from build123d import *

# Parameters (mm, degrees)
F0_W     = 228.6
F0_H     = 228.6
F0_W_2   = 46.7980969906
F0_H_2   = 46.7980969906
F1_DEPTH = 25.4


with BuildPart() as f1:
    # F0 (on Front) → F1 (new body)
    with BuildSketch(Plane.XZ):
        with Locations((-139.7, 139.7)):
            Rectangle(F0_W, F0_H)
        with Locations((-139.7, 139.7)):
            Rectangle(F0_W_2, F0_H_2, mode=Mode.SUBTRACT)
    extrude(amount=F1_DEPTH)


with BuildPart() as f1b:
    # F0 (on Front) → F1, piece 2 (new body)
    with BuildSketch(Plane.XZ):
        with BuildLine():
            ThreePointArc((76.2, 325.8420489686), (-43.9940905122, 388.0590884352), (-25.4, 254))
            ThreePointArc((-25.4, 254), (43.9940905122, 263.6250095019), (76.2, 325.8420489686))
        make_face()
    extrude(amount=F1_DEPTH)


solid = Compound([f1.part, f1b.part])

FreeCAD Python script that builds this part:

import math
import FreeCAD as App
import Part
import Sketcher

V = App.Vector
Q = App.Units.Quantity

doc = App.newDocument("Part")
body = doc.addObject("PartDesign::Body", "Body")

# Sketch on XZ plane
sketch1 = body.newObject("Sketcher::SketchObject", "Sketch")
sketch1.AttachmentSupport = (doc.getObject("XZ_Plane"), [""])
sketch1.MapMode = "FlatFace"
sketch1.addGeometry([
    Part.LineSegment(V(-254, 254, 0), V(-254, 25.4, 0)),  # 0
    Part.LineSegment(V(-254, 25.4, 0), V(-25.4, 25.4, 0)),  # 1
    Part.LineSegment(V(-25.4, 25.4, 0), V(-25.4, 254, 0)),  # 2
    Part.LineSegment(V(-25.4, 254, 0), V(-254, 254, 0)),  # 3
    Part.LineSegment(V(-116.300952, 116.300952, 0), V(-163.099048, 116.300952, 0)),  # 4
    Part.LineSegment(V(-163.099048, 116.300952, 0), V(-163.099048, 163.099048, 0)),  # 5
    Part.LineSegment(V(-163.099048, 163.099048, 0), V(-116.300952, 163.099048, 0)),  # 6
    Part.LineSegment(V(-116.300952, 163.099048, 0), V(-116.300952, 116.300952, 0)),  # 7
], False)
sketch1.addConstraint([
    Sketcher.Constraint("Coincident", 0, 2, 1, 1),
    Sketcher.Constraint("Coincident", 1, 2, 2, 1),
    Sketcher.Constraint("Coincident", 2, 2, 3, 1),
    Sketcher.Constraint("Coincident", 3, 2, 0, 1),
    Sketcher.Constraint("Coincident", 4, 2, 5, 1),
    Sketcher.Constraint("Coincident", 5, 2, 6, 1),
    Sketcher.Constraint("Coincident", 6, 2, 7, 1),
    Sketcher.Constraint("Coincident", 7, 2, 4, 1),
    Sketcher.Constraint("Vertical", 0),
    Sketcher.Constraint("Horizontal", 1),
    Sketcher.Constraint("Vertical", 2),
    Sketcher.Constraint("Horizontal", 3),
    Sketcher.Constraint("Horizontal", 4),
    Sketcher.Constraint("Vertical", 5),
    Sketcher.Constraint("Horizontal", 6),
    Sketcher.Constraint("Vertical", 7),
    Sketcher.Constraint("Equal", 3, 0),
    Sketcher.Constraint("Equal", 6, 5),
    Sketcher.Constraint("DistanceX", 1, 1, 1, 2, Q("9 in")),
    Sketcher.Constraint("DistanceX", 0, 2, -1, 1, Q("10 in")),
    Sketcher.Constraint("DistanceY", -1, 1, 0, 2, Q("1 in")),
    Sketcher.Constraint("DistanceX", 4, 2, 4, 1, Q("46.798097 mm")),
    Sketcher.Constraint("DistanceX", 4, 2, -1, 1, Q("163.099048 mm")),
    Sketcher.Constraint("DistanceY", -1, 1, 4, 2, Q("116.300952 mm")),
])
pad1 = body.newObject("PartDesign::Pad", "Pad")
pad1.Profile = sketch1
pad1.Length = Q("1 in")
body2 = doc.addObject("PartDesign::Body", "Body001")

# Sketch on XZ plane
sketch2 = body2.newObject("Sketcher::SketchObject", "Sketch001")
sketch2.AttachmentSupport = (doc.getObject("XZ_Plane001"), [""])
sketch2.MapMode = "FlatFace"
sketch2.addGeometry([
    Part.ArcOfCircle(Part.Circle(V(0, 325.842049, 0), V(0, 0, 1), 76.2), math.radians(0), math.radians(250.528779)),
    Part.ArcOfCircle(Part.Circle(V(0, 325.842049, 0), V(0, 0, 1), 76.2), math.radians(-109.471221), math.radians(0)),
], False)
sketch2.addConstraint([
    Sketcher.Constraint("Tangent", 0, 1, 1, 2),
    Sketcher.Constraint("Coincident", 1, 1, 0, 2),
    Sketcher.Constraint("PointOnObject", 0, 3, -2),
    Sketcher.Constraint("Horizontal", 1, 3, 0, 1),
    Sketcher.Constraint("Radius", 0, Q("3 in")),
    Sketcher.Constraint("DistanceX", 1, 1, -1, 1, Q("1 in")),
    Sketcher.Constraint("DistanceY", -1, 1, 1, 1, Q("10 in")),
])
pad2 = body2.newObject("PartDesign::Pad", "Pad001")
pad2.Profile = sketch2
pad2.Length = Q("1 in")

doc.recompute()
